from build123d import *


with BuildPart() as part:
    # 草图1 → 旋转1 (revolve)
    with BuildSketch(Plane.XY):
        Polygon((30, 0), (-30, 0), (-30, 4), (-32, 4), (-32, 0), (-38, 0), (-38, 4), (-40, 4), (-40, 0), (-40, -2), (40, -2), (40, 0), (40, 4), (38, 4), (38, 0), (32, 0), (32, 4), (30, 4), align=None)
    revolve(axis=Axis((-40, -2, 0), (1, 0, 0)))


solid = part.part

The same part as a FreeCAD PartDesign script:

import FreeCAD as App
import Part
import Sketcher
from FreeCAD import Vector
Q = App.Units.Quantity


def add_polygon(sketch, points):
    """Adds a closed chain of lines whose ends are joined by coincident constraints."""
    first, n = sketch.GeometryCount, len(points)
    for a, b in zip(points, points[1:] + points[:1]):
        sketch.addGeometry(Part.LineSegment(App.Vector(*a, 0), App.Vector(*b, 0)), False)
    for i in range(n):
        sketch.addConstraint(Sketcher.Constraint("Coincident", first + i, 2, first + (i + 1) % n, 1))

doc = App.newDocument("Part")
params = doc.addObject("Spreadsheet::Sheet", "Params")
for row, (alias, value) in enumerate([
    ("sketch1_width", "60 mm"),
    ("sketch1_width2", "2 mm"),
    ("sketch1_width3", "6 mm"),
    ("sketch1_height", "4 mm"),
    ("revolution_angle", "360 deg"),
], start=1):
    params.set(f"A{row}", alias)
    params.set(f"B{row}", "=" + value)
    params.setAlias(f"B{row}", alias)

body = doc.addObject("PartDesign::Body", "Body")

# Sketch on XY plane
sketch1 = body.newObject("Sketcher::SketchObject", "Sketch")
sketch1.AttachmentSupport = (doc.getObject("XY_Plane"), [""])
sketch1.MapMode = "FlatFace"
add_polygon(sketch1, [(30, 0), (-30, 0), (-30, 4), (-32, 4), (-32, 0), (-38, 0), (-38, 4), (-40, 4), (-40, -2), (40, -2), (40, 4), (38, 4), (38, 0), (32, 0), (32, 4), (30, 4)])  # lines 0-15
sketch1.addGeometry(Part.LineSegment(Vector(-40, -2, 0), Vector(40, -2, 0)), True)  # axis
sketch1.addConstraint([
    Sketcher.Constraint("Horizontal", 0),
    Sketcher.Constraint("Vertical", 1),
    Sketcher.Constraint("Horizontal", 2),
    Sketcher.Constraint("Vertical", 3),
    Sketcher.Constraint("Horizontal", 4),
    Sketcher.Constraint("Vertical", 5),
    Sketcher.Constraint("Horizontal", 6),
    Sketcher.Constraint("Vertical", 7),
    Sketcher.Constraint("Horizontal", 8),
    Sketcher.Constraint("Vertical", 9),
    Sketcher.Constraint("Horizontal", 10),
    Sketcher.Constraint("Vertical", 11),
    Sketcher.Constraint("Horizontal", 12),
    Sketcher.Constraint("Vertical", 13),
    Sketcher.Constraint("Horizontal", 14),
    Sketcher.Constraint("Vertical", 15),
    Sketcher.Constraint("Horizontal", 16),
    Sketcher.Constraint("Coincident", 16, 1, 7, 2),
    Sketcher.Constraint("Symmetric", 4, 2, 11, 2, -1, 1),
    Sketcher.Constraint("Symmetric", 0, 2, 15, 2, -1, 1),
    Sketcher.Constraint("Symmetric", 6, 2, 9, 2, -2),
    Sketcher.Constraint("Symmetric", 3, 2, 12, 2, -2),
    Sketcher.Constraint("Horizontal", 2, 2, 5, 2),
    Sketcher.Constraint("Horizontal", 10, 2, 13, 2),
    Sketcher.Constraint("Vertical", 9, 2, 16, 2),
    Sketcher.Constraint("Equal", 2, 6),
    Sketcher.Constraint("Equal", 12, 7),
    Sketcher.Constraint("DistanceX", 0, 2, 0, 1, Q("60 mm")),
    Sketcher.Constraint("DistanceX", 2, 2, 2, 1, Q("2 mm")),
    Sketcher.Constraint("DistanceX", 4, 2, 4, 1, Q("6 mm")),
    Sketcher.Constraint("DistanceY", 1, 1, 1, 2, Q("4 mm")),
])
sketch1.setExpression("Constraints[43]", "Params.sketch1_width")
sketch1.setExpression("Constraints[44]", "Params.sketch1_width2")
sketch1.setExpression("Constraints[45]", "Params.sketch1_width3")
sketch1.setExpression("Constraints[46]", "Params.sketch1_height")
revolution = body.newObject("PartDesign::Revolution", "Revolution")
revolution.Profile = sketch1
revolution.ReferenceAxis = (sketch1, ["Axis0"])
revolution.setExpression("Angle", "Params.revolution_angle")

doc.recompute()
